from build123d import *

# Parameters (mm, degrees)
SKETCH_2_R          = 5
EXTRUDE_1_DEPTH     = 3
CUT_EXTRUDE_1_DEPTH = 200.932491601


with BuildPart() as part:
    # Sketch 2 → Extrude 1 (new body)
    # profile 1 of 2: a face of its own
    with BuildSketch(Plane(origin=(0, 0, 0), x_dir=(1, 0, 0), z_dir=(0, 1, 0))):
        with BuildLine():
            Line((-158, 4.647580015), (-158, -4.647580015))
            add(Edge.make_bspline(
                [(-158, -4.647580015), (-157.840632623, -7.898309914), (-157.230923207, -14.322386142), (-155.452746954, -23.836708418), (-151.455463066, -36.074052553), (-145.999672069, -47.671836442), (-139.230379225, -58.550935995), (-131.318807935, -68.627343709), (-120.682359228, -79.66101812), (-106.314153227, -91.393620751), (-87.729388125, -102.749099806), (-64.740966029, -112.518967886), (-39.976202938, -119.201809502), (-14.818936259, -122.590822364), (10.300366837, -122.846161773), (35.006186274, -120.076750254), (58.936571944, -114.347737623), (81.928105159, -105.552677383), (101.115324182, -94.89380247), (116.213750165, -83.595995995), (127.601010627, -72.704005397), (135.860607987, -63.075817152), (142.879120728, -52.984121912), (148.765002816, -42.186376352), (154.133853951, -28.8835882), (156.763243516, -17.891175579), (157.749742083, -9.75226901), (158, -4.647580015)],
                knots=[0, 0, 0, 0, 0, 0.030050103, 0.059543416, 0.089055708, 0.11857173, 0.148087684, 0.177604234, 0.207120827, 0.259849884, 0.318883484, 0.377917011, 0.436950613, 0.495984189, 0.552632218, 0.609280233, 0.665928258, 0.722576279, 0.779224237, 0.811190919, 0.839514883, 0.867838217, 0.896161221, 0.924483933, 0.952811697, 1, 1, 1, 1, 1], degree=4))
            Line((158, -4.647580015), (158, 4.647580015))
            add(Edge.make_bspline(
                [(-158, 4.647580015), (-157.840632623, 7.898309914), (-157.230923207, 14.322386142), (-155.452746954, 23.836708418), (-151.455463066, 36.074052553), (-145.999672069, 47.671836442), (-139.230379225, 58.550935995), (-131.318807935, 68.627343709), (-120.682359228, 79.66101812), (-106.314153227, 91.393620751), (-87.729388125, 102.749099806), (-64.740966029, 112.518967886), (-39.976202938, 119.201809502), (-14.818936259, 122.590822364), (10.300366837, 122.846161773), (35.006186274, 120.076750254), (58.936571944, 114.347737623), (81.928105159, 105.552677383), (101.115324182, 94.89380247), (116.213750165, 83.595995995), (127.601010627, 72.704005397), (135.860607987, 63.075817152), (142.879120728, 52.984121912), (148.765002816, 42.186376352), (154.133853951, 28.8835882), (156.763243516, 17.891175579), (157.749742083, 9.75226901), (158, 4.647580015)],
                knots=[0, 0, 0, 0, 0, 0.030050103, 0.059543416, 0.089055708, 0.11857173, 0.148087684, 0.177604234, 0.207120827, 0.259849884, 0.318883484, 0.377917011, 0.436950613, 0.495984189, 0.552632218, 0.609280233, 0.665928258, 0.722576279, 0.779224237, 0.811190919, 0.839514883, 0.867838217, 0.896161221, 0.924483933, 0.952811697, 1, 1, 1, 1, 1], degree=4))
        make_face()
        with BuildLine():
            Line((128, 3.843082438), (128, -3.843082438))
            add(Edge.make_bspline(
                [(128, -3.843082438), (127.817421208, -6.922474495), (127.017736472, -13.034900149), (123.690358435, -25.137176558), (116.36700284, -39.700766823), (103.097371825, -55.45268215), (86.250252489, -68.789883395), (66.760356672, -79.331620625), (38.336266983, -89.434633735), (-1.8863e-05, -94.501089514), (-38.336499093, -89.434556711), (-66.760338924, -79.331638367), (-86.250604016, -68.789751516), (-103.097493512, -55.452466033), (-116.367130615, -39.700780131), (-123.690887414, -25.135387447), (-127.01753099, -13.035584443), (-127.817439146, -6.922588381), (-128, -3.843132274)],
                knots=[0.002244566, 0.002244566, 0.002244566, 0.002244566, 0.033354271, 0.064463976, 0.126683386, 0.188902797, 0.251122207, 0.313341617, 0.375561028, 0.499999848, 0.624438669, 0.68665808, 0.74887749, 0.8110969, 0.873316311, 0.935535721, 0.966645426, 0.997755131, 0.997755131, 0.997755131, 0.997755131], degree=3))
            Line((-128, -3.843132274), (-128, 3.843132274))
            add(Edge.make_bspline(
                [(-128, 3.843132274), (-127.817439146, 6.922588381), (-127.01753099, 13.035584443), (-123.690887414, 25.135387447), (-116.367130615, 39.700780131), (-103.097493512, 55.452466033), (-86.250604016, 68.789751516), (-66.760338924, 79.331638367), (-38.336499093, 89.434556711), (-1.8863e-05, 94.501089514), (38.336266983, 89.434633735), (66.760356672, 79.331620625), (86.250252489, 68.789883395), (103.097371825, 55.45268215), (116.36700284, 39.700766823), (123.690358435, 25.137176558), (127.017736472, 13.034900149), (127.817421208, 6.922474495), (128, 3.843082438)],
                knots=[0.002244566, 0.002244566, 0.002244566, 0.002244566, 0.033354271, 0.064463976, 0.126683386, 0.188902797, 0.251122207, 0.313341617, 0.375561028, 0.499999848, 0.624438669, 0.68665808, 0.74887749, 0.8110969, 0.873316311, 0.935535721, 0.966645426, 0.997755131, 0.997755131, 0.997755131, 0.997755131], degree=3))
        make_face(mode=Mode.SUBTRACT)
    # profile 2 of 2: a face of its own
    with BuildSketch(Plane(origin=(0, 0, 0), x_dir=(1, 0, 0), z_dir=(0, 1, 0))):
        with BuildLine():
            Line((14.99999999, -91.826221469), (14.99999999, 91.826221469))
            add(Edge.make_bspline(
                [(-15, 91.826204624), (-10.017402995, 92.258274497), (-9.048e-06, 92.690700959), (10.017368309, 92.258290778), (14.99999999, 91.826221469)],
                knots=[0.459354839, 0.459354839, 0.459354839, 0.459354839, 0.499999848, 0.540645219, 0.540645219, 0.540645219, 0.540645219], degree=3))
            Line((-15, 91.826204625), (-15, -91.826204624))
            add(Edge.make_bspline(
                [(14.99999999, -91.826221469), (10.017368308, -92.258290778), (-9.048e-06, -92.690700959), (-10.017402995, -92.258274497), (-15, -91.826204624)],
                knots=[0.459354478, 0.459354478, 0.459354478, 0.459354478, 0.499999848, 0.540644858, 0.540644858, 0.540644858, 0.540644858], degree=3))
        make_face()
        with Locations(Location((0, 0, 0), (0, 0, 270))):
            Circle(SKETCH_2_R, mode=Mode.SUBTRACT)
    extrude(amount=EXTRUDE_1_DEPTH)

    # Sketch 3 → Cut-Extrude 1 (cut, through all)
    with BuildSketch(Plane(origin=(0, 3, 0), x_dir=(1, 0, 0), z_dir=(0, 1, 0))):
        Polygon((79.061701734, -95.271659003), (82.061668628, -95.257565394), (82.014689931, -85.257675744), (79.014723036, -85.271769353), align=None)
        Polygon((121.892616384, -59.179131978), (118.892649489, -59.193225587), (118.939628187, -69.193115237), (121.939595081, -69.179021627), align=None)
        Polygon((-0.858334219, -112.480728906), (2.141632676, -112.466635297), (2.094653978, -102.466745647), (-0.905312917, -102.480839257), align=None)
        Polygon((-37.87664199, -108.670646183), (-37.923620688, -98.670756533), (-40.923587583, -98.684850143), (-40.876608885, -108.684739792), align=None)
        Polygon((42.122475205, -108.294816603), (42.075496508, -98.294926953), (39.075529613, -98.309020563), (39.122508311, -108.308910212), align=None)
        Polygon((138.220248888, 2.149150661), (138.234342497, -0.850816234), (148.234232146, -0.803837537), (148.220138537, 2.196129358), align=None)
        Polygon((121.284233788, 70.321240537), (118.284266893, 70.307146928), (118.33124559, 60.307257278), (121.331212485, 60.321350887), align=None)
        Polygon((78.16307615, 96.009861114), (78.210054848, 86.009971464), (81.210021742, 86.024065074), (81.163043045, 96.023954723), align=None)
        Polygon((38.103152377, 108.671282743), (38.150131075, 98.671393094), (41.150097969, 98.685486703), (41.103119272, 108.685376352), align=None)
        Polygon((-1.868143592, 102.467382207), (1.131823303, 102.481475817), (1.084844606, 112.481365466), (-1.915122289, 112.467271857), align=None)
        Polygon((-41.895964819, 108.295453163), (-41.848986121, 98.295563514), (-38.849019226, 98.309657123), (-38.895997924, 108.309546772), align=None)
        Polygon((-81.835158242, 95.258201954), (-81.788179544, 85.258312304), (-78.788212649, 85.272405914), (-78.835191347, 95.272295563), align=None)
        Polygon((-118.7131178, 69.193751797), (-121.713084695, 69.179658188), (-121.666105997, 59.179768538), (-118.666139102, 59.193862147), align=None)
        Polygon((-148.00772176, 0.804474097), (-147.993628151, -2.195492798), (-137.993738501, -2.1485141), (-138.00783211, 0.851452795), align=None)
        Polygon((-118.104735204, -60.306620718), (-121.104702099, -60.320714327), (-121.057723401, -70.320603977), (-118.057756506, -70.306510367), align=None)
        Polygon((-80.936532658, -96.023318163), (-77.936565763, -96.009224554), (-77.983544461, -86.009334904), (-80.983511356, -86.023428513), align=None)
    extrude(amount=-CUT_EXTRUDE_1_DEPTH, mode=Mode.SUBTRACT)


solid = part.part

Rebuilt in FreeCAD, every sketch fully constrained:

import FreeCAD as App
import Part
import Sketcher

V = App.Vector


def add_polygon(sketch, points):
    """Adds a closed chain of lines whose ends are joined by coincident constraints."""
    first, n = sketch.GeometryCount, len(points)
    for a, b in zip(points, points[1:] + points[:1]):
        sketch.addGeometry(Part.LineSegment(App.Vector(*a, 0), App.Vector(*b, 0)), False)
    for i in range(n):
        sketch.addConstraint(Sketcher.Constraint("Coincident", first + i, 2, first + (i + 1) % n, 1))

doc = App.newDocument("Part")
body = doc.addObject("PartDesign::Body", "Body")

# Sketch on XZ plane
sketch1 = doc.addObject("Sketcher::SketchObject", "Sketch")
body.addObject(sketch1)
sketch1.AttachmentSupport = (doc.XZ_Plane, [""])
sketch1.MapMode = "FlatFace"
sketch1.addGeometry([
    Part.LineSegment(V(-158, -4.64758, 0), V(-158, 4.64758, 0)),  # 0
    Part.BSplineCurve([V(-158, 4.64758, 0), V(-157.840633, 7.89831, 0), V(-157.230923, 14.322386, 0), V(-155.452747, 23.836708, 0), V(-151.455463, 36.074053, 0), V(-145.999672, 47.671836, 0), V(-139.230379, 58.550936, 0), V(-131.318808, 68.627344, 0), V(-120.682359, 79.661018, 0), V(-106.314153, 91.393621, 0), V(-87.729388, 102.7491, 0), V(-64.740966, 112.518968, 0), V(-39.976203, 119.20181, 0), V(-14.818936, 122.590822, 0), V(10.300367, 122.846162, 0), V(35.006186, 120.07675, 0), V(58.936572, 114.347738, 0), V(81.928105, 105.552677, 0), V(101.115324, 94.893802, 0), V(116.21375, 83.595996, 0), V(127.601011, 72.704005, 0), V(135.860608, 63.075817, 0), V(142.879121, 52.984122, 0), V(148.765003, 42.186376, 0), V(154.133854, 28.883588, 0), V(156.763244, 17.891176, 0), V(157.749742, 9.752269, 0), V(158, 4.64758, 0)], [5, 1, 1, 1, 1, 1, 1, 1, 1, 1, 1, 1, 1, 1, 1, 1, 1, 1, 1, 1, 1, 1, 1, 1, 5], [0, 0.030050103, 0.059543416, 0.089055708, 0.11857173, 0.148087684, 0.177604234, 0.207120827, 0.259849884, 0.318883484, 0.377917011, 0.436950613, 0.495984189, 0.552632218, 0.609280233, 0.665928258, 0.722576279, 0.779224237, 0.811190919, 0.839514883, 0.867838217, 0.896161221, 0.924483933, 0.952811697, 1], False, 4, [1, 1, 1, 1, 1, 1, 1, 1, 1, 1, 1, 1, 1, 1, 1, 1, 1, 1, 1, 1, 1, 1, 1, 1, 1, 1, 1, 1], False),  # 1
    Part.LineSegment(V(158, 4.64758, 0), V(158, -4.64758, 0)),  # 2
    Part.BSplineCurve([V(-158, -4.64758, 0), V(-157.840633, -7.89831, 0), V(-157.230923, -14.322386, 0), V(-155.452747, -23.836708, 0), V(-151.455463, -36.074053, 0), V(-145.999672, -47.671836, 0), V(-139.230379, -58.550936, 0), V(-131.318808, -68.627344, 0), V(-120.682359, -79.661018, 0), V(-106.314153, -91.393621, 0), V(-87.729388, -102.7491, 0), V(-64.740966, -112.518968, 0), V(-39.976203, -119.20181, 0), V(-14.818936, -122.590822, 0), V(10.300367, -122.846162, 0), V(35.006186, -120.07675, 0), V(58.936572, -114.347738, 0), V(81.928105, -105.552677, 0), V(101.115324, -94.893802, 0), V(116.21375, -83.595996, 0), V(127.601011, -72.704005, 0), V(135.860608, -63.075817, 0), V(142.879121, -52.984122, 0), V(148.765003, -42.186376, 0), V(154.133854, -28.883588, 0), V(156.763244, -17.891176, 0), V(157.749742, -9.752269, 0), V(158, -4.64758, 0)], [5, 1, 1, 1, 1, 1, 1, 1, 1, 1, 1, 1, 1, 1, 1, 1, 1, 1, 1, 1, 1, 1, 1, 1, 5], [0, 0.030050103, 0.059543416, 0.089055708, 0.11857173, 0.148087684, 0.177604234, 0.207120827, 0.259849884, 0.318883484, 0.377917011, 0.436950613, 0.495984189, 0.552632218, 0.609280233, 0.665928258, 0.722576279, 0.779224237, 0.811190919, 0.839514883, 0.867838217, 0.896161221, 0.924483933, 0.952811697, 1], False, 4, [1, 1, 1, 1, 1, 1, 1, 1, 1, 1, 1, 1, 1, 1, 1, 1, 1, 1, 1, 1, 1, 1, 1, 1, 1, 1, 1, 1], False),  # 3
    Part.BSplineCurve([V(-128, -3.843132, 0), V(-127.817439, -6.922588, 0), V(-127.017531, -13.035584, 0), V(-123.690887, -25.135387, 0), V(-116.367131, -39.70078, 0), V(-103.097494, -55.452466, 0), V(-86.250604, -68.789752, 0), V(-66.760339, -79.331638, 0), V(-42.978488, -87.784617, 0), V(-25.272129, -90.935449, 0), V(-15, -91.826205, 0)], [4, 1, 1, 1, 1, 1, 1, 1, 4], [0.002244566, 0.033354271, 0.064463976, 0.126683386, 0.188902797, 0.251122207, 0.313341617, 0.375561028, 0.459354839], False, 3, [1, 1, 1, 1, 1, 1, 1, 1, 1, 1, 1], False),  # 4
    Part.LineSegment(V(-15, -91.826205, 0), V(-15, 91.826205, 0)),  # 5
    Part.BSplineCurve([V(-15, 91.826205, 0), V(-25.272129, 90.935449, 0), V(-42.978488, 87.784617, 0), V(-66.760339, 79.331638, 0), V(-86.250604, 68.789752, 0), V(-103.097494, 55.452466, 0), V(-116.367131, 39.70078, 0), V(-123.690887, 25.135387, 0), V(-127.017531, 13.035584, 0), V(-127.817439, 6.922588, 0), V(-128, 3.843132, 0)], [4, 1, 1, 1, 1, 1, 1, 1, 4], [0.540644858, 0.624438669, 0.68665808, 0.74887749, 0.8110969, 0.873316311, 0.935535721, 0.966645426, 0.997755131], False, 3, [1, 1, 1, 1, 1, 1, 1, 1, 1, 1, 1], False),  # 6
    Part.LineSegment(V(-128, 3.843132, 0), V(-128, -3.843132, 0)),  # 7
    Part.BSplineCurve([V(15, -91.826221, 0), V(25.272065, -90.935479, 0), V(42.978338, -87.784663, 0), V(66.760357, -79.331621, 0), V(86.250252, -68.789883, 0), V(103.097372, -55.452682, 0), V(116.367003, -39.700767, 0), V(123.690358, -25.137177, 0), V(127.017736, -13.0349, 0), V(127.817421, -6.922474, 0), V(128, -3.843082, 0)], [4, 1, 1, 1, 1, 1, 1, 1, 4], [0.540645219, 0.624438669, 0.68665808, 0.74887749, 0.8110969, 0.873316311, 0.935535721, 0.966645426, 0.997755131], False, 3, [1, 1, 1, 1, 1, 1, 1, 1, 1, 1, 1], False),  # 8
    Part.LineSegment(V(128, -3.843082, 0), V(128, 3.843082, 0)),  # 9
    Part.BSplineCurve([V(128, 3.843082, 0), V(127.817421, 6.922474, 0), V(127.017736, 13.0349, 0), V(123.690358, 25.137177, 0), V(116.367003, 39.700767, 0), V(103.097372, 55.452682, 0), V(86.250252, 68.789883, 0), V(66.760357, 79.331621, 0), V(42.978338, 87.784663, 0), V(25.272065, 90.935479, 0), V(15, 91.826221, 0)], [4, 1, 1, 1, 1, 1, 1, 1, 4], [0.002244566, 0.033354271, 0.064463976, 0.126683386, 0.188902797, 0.251122207, 0.313341617, 0.375561028, 0.459354478], False, 3, [1, 1, 1, 1, 1, 1, 1, 1, 1, 1, 1], False),  # 10
    Part.LineSegment(V(15, 91.826221, 0), V(15, -91.826221, 0)),  # 11
    Part.Circle(V(0, 0, 0), V(0, 0, 1), 5),  # 12
], False)
sketch1.addConstraint([
    Sketcher.Constraint("Block", 1),
    Sketcher.Constraint("Block", 3),
    Sketcher.Constraint("Block", 4),
    Sketcher.Constraint("Block", 6),
    Sketcher.Constraint("Block", 8),
    Sketcher.Constraint("Block", 10),
    Sketcher.Constraint("Coincident", 0, 2, 1, 1),
    Sketcher.Constraint("Coincident", 1, 2, 2, 1),
    Sketcher.Constraint("Coincident", 2, 2, 3, 2),
    Sketcher.Constraint("Coincident", 3, 1, 0, 1),
    Sketcher.Constraint("Coincident", 4, 2, 5, 1),
    Sketcher.Constraint("Coincident", 5, 2, 6, 1),
    Sketcher.Constraint("Coincident", 6, 2, 7, 1),
    Sketcher.Constraint("Coincident", 7, 2, 4, 1),
    Sketcher.Constraint("Coincident", 8, 2, 9, 1),
    Sketcher.Constraint("Coincident", 9, 2, 10, 1),
    Sketcher.Constraint("Coincident", 10, 2, 11, 1),
    Sketcher.Constraint("Coincident", 11, 2, 8, 1),
    Sketcher.Constraint("Coincident", 12, 3, -1, 1),
    Sketcher.Constraint("Diameter", 12, 10.0),
])
pad1 = doc.addObject("PartDesign::Pad", "Pad")
body.addObject(pad1)
pad1.Profile = sketch1
pad1.Length = 3
pad1.Reversed = True

# Sketch on XZ plane
sketch2 = doc.addObject("Sketcher::SketchObject", "Sketch001")
body.addObject(sketch2)
sketch2.AttachmentSupport = (doc.XZ_Plane, [""])
sketch2.MapMode = "FlatFace"
sketch2.AttachmentOffset = App.Placement(V(0, 0, -3), App.Rotation())
add_polygon(sketch2, [(79.1, 95.3), (82.1, 95.3), (82, 85.3), (79, 85.3)])  # lines 0-3
add_polygon(sketch2, [(121.9, 59.2), (118.9, 59.2), (118.9, 69.2), (121.9, 69.2)])  # lines 4-7
add_polygon(sketch2, [(-0.9, 112.5), (2.1, 112.5), (2.1, 102.5), (-0.9, 102.5)])  # lines 8-11
add_polygon(sketch2, [(-37.9, 108.7), (-37.9, 98.7), (-40.9, 98.7), (-40.9, 108.7)])  # lines 12-15
add_polygon(sketch2, [(42.1, 108.3), (42.1, 98.3), (39.1, 98.3), (39.1, 108.3)])  # lines 16-19
add_polygon(sketch2, [(138.2, -2.1), (138.2, 0.9), (148.2, 0.8), (148.2, -2.2)])  # lines 20-23
add_polygon(sketch2, [(121.3, -70.3), (118.3, -70.3), (118.3, -60.3), (121.3, -60.3)])  # lines 24-27
add_polygon(sketch2, [(78.2, -96), (78.2, -86), (81.2, -86), (81.2, -96)])  # lines 28-31
add_polygon(sketch2, [(38.1, -108.7), (38.2, -98.7), (41.2, -98.7), (41.1, -108.7)])  # lines 32-35
add_polygon(sketch2, [(-1.9, -102.5), (1.1, -102.5), (1.1, -112.5), (-1.9, -112.5)])  # lines 36-39
add_polygon(sketch2, [(-41.9, -108.3), (-41.8, -98.3), (-38.8, -98.3), (-38.9, -108.3)])  # lines 40-43
add_polygon(sketch2, [(-81.8, -95.3), (-81.8, -85.3), (-78.8, -85.3), (-78.8, -95.3)])  # lines 44-47
add_polygon(sketch2, [(-118.7, -69.2), (-121.7, -69.2), (-121.7, -59.2), (-118.7, -59.2)])  # lines 48-51
add_polygon(sketch2, [(-148, -0.8), (-148, 2.2), (-138, 2.1), (-138, -0.9)])  # lines 52-55
add_polygon(sketch2, [(-118.1, 60.3), (-121.1, 60.3), (-121.1, 70.3), (-118.1, 70.3)])  # lines 56-59
add_polygon(sketch2, [(-80.9, 96), (-77.9, 96), (-78, 86), (-81, 86)])  # lines 60-63
sketch2.addConstraint([
    Sketcher.Constraint("Perpendicular", 0, 1),
    Sketcher.Constraint("Perpendicular", 1, 2),
    Sketcher.Constraint("Perpendicular", 2, 3),
    Sketcher.Constraint("Perpendicular", 3, 4),
    Sketcher.Constraint("Perpendicular", 4, 5),
    Sketcher.Constraint("Perpendicular", 5, 6),
    Sketcher.Constraint("Perpendicular", 6, 7),
    Sketcher.Constraint("Perpendicular", 7, 8),
    Sketcher.Constraint("Perpendicular", 8, 9),
    Sketcher.Constraint("Perpendicular", 9, 10),
    Sketcher.Constraint("Perpendicular", 10, 11),
    Sketcher.Constraint("Parallel", 11, 12),
    Sketcher.Constraint("Perpendicular", 12, 13),
    Sketcher.Constraint("Perpendicular", 13, 14),
    Sketcher.Constraint("Perpendicular", 14, 15),
    Sketcher.Constraint("Perpendicular", 15, 16),
    Sketcher.Constraint("Perpendicular", 16, 17),
    Sketcher.Constraint("Perpendicular", 17, 18),
    Sketcher.Constraint("Perpendicular", 18, 19),
    Sketcher.Constraint("Perpendicular", 19, 20),
    Sketcher.Constraint("Perpendicular", 20, 21),
    Sketcher.Constraint("Perpendicular", 21, 22),
    Sketcher.Constraint("Perpendicular", 22, 23),
    Sketcher.Constraint("Parallel", 23, 24),
    Sketcher.Constraint("Perpendicular", 24, 25),
    Sketcher.Constraint("Perpendicular", 25, 26),
    Sketcher.Constraint("Perpendicular", 26, 27),
    Sketcher.Constraint("Parallel", 27, 28),
    Sketcher.Constraint("Perpendicular", 28, 29),
    Sketcher.Constraint("Perpendicular", 29, 30),
    Sketcher.Constraint("Perpendicular", 30, 31),
    Sketcher.Constraint("Perpendicular", 31, 32),
    Sketcher.Constraint("Perpendicular", 32, 33),
    Sketcher.Constraint("Perpendicular", 33, 34),
    Sketcher.Constraint("Perpendicular", 34, 35),
    Sketcher.Constraint("Parallel", 35, 36),
    Sketcher.Constraint("Perpendicular", 36, 37),
    Sketcher.Constraint("Perpendicular", 37, 38),
    Sketcher.Constraint("Perpendicular", 38, 39),
    Sketcher.Constraint("Parallel", 39, 40),
    Sketcher.Constraint("Perpendicular", 40, 41),
    Sketcher.Constraint("Perpendicular", 41, 42),
    Sketcher.Constraint("Perpendicular", 42, 43),
    Sketcher.Constraint("Perpendicular", 43, 44),
    Sketcher.Constraint("Perpendicular", 44, 45),
    Sketcher.Constraint("Perpendicular", 45, 46),
    Sketcher.Constraint("Perpendicular", 46, 47),
    Sketcher.Constraint("Parallel", 47, 48),
    Sketcher.Constraint("Perpendicular", 48, 49),
    Sketcher.Constraint("Perpendicular", 49, 50),
    Sketcher.Constraint("Perpendicular", 50, 51),
    Sketcher.Constraint("Parallel", 51, 52),
    Sketcher.Constraint("Perpendicular", 52, 53),
    Sketcher.Constraint("Perpendicular", 53, 54),
    Sketcher.Constraint("Perpendicular", 54, 55),
    Sketcher.Constraint("Parallel", 55, 56),
    Sketcher.Constraint("Perpendicular", 56, 57),
    Sketcher.Constraint("Perpendicular", 57, 58),
    Sketcher.Constraint("Perpendicular", 58, 59),
    Sketcher.Constraint("Perpendicular", 59, 60),
    Sketcher.Constraint("Perpendicular", 60, 61),
    Sketcher.Constraint("Perpendicular", 61, 62),
    Sketcher.Constraint("Perpendicular", 62, 63),
    Sketcher.Constraint("Equal", 2, 4),
    Sketcher.Constraint("Equal", 3, 5),
    Sketcher.Constraint("Equal", 6, 8),
    Sketcher.Constraint("Equal", 7, 9),
    Sketcher.Constraint("Equal", 11, 12),
    Sketcher.Constraint("Equal", 10, 13),
    Sketcher.Constraint("Equal", 14, 16),
    Sketcher.Constraint("Equal", 15, 17),
    Sketcher.Constraint("Equal", 19, 20),
    Sketcher.Constraint("Equal", 18, 21),
    Sketcher.Constraint("Equal", 22, 24),
    Sketcher.Constraint("Equal", 23, 25),
    Sketcher.Constraint("Equal", 27, 28),
    Sketcher.Constraint("Equal", 26, 29),
    Sketcher.Constraint("Equal", 30, 32),
    Sketcher.Constraint("Equal", 31, 33),
    Sketcher.Constraint("Equal", 35, 36),
    Sketcher.Constraint("Equal", 34, 37),
    Sketcher.Constraint("Equal", 39, 40),
    Sketcher.Constraint("Equal", 38, 41),
    Sketcher.Constraint("Equal", 42, 44),
    Sketcher.Constraint("Equal", 43, 45),
    Sketcher.Constraint("Equal", 47, 48),
    Sketcher.Constraint("Equal", 46, 49),
    Sketcher.Constraint("Equal", 50, 52),
    Sketcher.Constraint("Equal", 51, 53),
    Sketcher.Constraint("Equal", 54, 56),
    Sketcher.Constraint("Equal", 55, 57),
    Sketcher.Constraint("Equal", 58, 60),
    Sketcher.Constraint("Equal", 59, 61),
    Sketcher.Constraint("Distance", 0, 3.0),
    Sketcher.Constraint("Distance", 1, 10.0),
    Sketcher.Constraint("DistanceX", -1, 1, 3, 2, 79.061702),
    Sketcher.Constraint("DistanceY", 47, 2, -1, 1, 95.258202),
    Sketcher.Constraint("DistanceX", -1, 1, 1, 2, 82.01469),
    Sketcher.Constraint("DistanceY", -1, 1, 2, 2, 85.271769),
    Sketcher.Constraint("DistanceX", -1, 1, 4, 2, 118.892649),
    Sketcher.Constraint("DistanceY", -1, 1, 6, 2, 69.179022),
    Sketcher.Constraint("DistanceY", -1, 1, 10, 2, 102.480839),
    Sketcher.Constraint("DistanceX", 12, 2, -1, 1, 37.923621),
    Sketcher.Constraint("DistanceY", -1, 1, 13, 2, 98.68485),
    Sketcher.Constraint("DistanceX", -1, 1, 17, 2, 39.07553),
    Sketcher.Constraint("DistanceY", -1, 1, 17, 2, 98.309021),
    Sketcher.Constraint("DistanceX", -1, 1, 22, 2, 148.220139),
    Sketcher.Constraint("DistanceY", 22, 2, -1, 1, 2.196129),
    Sketcher.Constraint("DistanceY", 26, 2, -1, 1, 60.321351),
    Sketcher.Constraint("DistanceY", 28, 2, -1, 1, 86.009971),
    Sketcher.Constraint("DistanceX", -1, 1, 29, 2, 81.210022),
    Sketcher.Constraint("DistanceX", -1, 1, 32, 2, 38.150131),
    Sketcher.Constraint("DistanceY", 38, 2, -1, 1, 112.467272),
    Sketcher.Constraint("DistanceX", 41, 2, -1, 1, 38.849019),
    Sketcher.Constraint("DistanceX", 44, 2, -1, 1, 81.78818),
    Sketcher.Constraint("DistanceY", 48, 2, -1, 1, 69.179658),
    Sketcher.Constraint("DistanceX", 50, 2, -1, 1, 118.666139),
    Sketcher.Constraint("DistanceX", 52, 2, -1, 1, 147.993628),
    Sketcher.Constraint("DistanceY", -1, 1, 58, 2, 70.30651),
    Sketcher.Constraint("DistanceX", 62, 2, -1, 1, 80.983511),
    Sketcher.Constraint("DistanceY", -1, 1, 62, 2, 86.023429),
    Sketcher.Constraint("DistanceX", -1, 1, 8, 2, 2.141633),
    Sketcher.Constraint("DistanceX", -1, 1, 24, 2, 118.284267),
    Sketcher.Constraint("DistanceY", 32, 2, -1, 1, 98.671393),
    Sketcher.Constraint("DistanceX", -1, 1, 36, 2, 1.131823),
    Sketcher.Constraint("DistanceY", 40, 2, -1, 1, 98.295564),
    Sketcher.Constraint("DistanceY", -1, 1, 52, 2, 2.195493),
    Sketcher.Constraint("DistanceX", 56, 2, -1, 1, 121.104702),
])
pocket1 = doc.addObject("PartDesign::Pocket", "Pocket")
body.addObject(pocket1)
pocket1.Profile = sketch2
pocket1.Type = "ThroughAll"
pocket1.Reversed = True

doc.recompute()
